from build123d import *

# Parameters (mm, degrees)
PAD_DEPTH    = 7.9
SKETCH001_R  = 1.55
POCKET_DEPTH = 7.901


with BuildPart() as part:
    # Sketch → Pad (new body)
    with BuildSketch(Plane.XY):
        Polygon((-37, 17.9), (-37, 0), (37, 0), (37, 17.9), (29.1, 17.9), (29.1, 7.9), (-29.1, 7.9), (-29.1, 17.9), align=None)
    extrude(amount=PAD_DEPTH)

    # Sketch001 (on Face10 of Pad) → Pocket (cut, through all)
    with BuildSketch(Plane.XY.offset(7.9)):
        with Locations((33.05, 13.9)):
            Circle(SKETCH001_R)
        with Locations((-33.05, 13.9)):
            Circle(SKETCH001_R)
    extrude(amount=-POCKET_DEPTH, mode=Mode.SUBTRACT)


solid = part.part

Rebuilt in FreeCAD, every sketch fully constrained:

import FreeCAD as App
import Part
import Sketcher

doc = App.newDocument("Part")
body = doc.addObject("PartDesign::Body", "Body")

# Sketch on XY plane
sketch1 = body.newObject("Sketcher::SketchObject", "Sketch")
sketch1.AttachmentSupport = (doc.getObject("XY_Plane"), [""])
sketch1.MapMode = "FlatFace"
sketch1.addGeometry([
    Part.LineSegment(App.Vector(-37, 18, 0), App.Vector(-37, 0, 0)),  # 0
    Part.LineSegment(App.Vector(-37, 0, 0), App.Vector(37, 0, 0)),  # 1
    Part.LineSegment(App.Vector(37, 0, 0), App.Vector(37, 18, 0)),  # 2
    Part.LineSegment(App.Vector(37, 18, 0), App.Vector(29, 18, 0)),  # 3
    Part.LineSegment(App.Vector(29, 18, 0), App.Vector(29, 8, 0)),  # 4
    Part.LineSegment(App.Vector(29, 8, 0), App.Vector(-29, 8, 0)),  # 5
    Part.LineSegment(App.Vector(-29, 8, 0), App.Vector(-29, 18, 0)),  # 6
    Part.LineSegment(App.Vector(-29, 18, 0), App.Vector(-37, 18, 0)),  # 7
], False)
sketch1.addConstraint([
    Sketcher.Constraint("Coincident", 0, 2, 1, 1),
    Sketcher.Constraint("Coincident", 1, 2, 2, 1),
    Sketcher.Constraint("Coincident", 2, 2, 3, 1),
    Sketcher.Constraint("Coincident", 3, 2, 4, 1),
    Sketcher.Constraint("Coincident", 4, 2, 5, 1),
    Sketcher.Constraint("Coincident", 5, 2, 6, 1),
    Sketcher.Constraint("Coincident", 6, 2, 7, 1),
    Sketcher.Constraint("Coincident", 7, 2, 0, 1),
    Sketcher.Constraint("Vertical", 0),
    Sketcher.Constraint("Horizontal", 1),
    Sketcher.Constraint("Vertical", 2),
    Sketcher.Constraint("Horizontal", 3),
    Sketcher.Constraint("Vertical", 4),
    Sketcher.Constraint("Horizontal", 5),
    Sketcher.Constraint("Vertical", 6),
    Sketcher.Constraint("Horizontal", 7),
    Sketcher.Constraint("Symmetric", 0, 2, 1, 2, -1, 1),
    Sketcher.Constraint("Symmetric", 3, 2, 6, 2, -2),
    Sketcher.Constraint("DistanceX", 1, 1, 1, 2, 74.0),
    Sketcher.Constraint("DistanceY", 4, 2, 4, 1, 10.0),
    Sketcher.Constraint("DistanceX", 3, 2, 3, 1, 7.9),
    Sketcher.Constraint("DistanceY", 0, 2, 0, 1, 17.9),
])
pad1 = body.newObject("PartDesign::Pad", "Pad")
pad1.Profile = sketch1
pad1.Length = 7.9

# Sketch on XY plane
sketch2 = body.newObject("Sketcher::SketchObject", "Sketch001")
sketch2.AttachmentSupport = (doc.getObject("XY_Plane"), [""])
sketch2.MapMode = "FlatFace"
sketch2.AttachmentOffset = App.Placement(App.Vector(0, 0, 7.9), App.Rotation())
sketch2.addGeometry([
    Part.Circle(App.Vector(33, 13.9, 0), App.Vector(0, 0, 1), 1.6),
    Part.Circle(App.Vector(-33, 13.9, 0), App.Vector(0, 0, 1), 1.6),
], False)
sketch2.addConstraint([
    Sketcher.Constraint("Equal", 0, 1),
    Sketcher.Constraint("Symmetric", 0, 3, 1, 3, -2),
    Sketcher.Constraint("Diameter", 0, 3.1),
    Sketcher.Constraint("DistanceY", -1, 1, 0, 3, 13.9),
    Sketcher.Constraint("DistanceX", 1, 3, 0, 3, 66.1),
])
pocket1 = body.newObject("PartDesign::Pocket", "Pocket")
pocket1.Profile = sketch2
pocket1.Type = "ThroughAll"

doc.recompute()
